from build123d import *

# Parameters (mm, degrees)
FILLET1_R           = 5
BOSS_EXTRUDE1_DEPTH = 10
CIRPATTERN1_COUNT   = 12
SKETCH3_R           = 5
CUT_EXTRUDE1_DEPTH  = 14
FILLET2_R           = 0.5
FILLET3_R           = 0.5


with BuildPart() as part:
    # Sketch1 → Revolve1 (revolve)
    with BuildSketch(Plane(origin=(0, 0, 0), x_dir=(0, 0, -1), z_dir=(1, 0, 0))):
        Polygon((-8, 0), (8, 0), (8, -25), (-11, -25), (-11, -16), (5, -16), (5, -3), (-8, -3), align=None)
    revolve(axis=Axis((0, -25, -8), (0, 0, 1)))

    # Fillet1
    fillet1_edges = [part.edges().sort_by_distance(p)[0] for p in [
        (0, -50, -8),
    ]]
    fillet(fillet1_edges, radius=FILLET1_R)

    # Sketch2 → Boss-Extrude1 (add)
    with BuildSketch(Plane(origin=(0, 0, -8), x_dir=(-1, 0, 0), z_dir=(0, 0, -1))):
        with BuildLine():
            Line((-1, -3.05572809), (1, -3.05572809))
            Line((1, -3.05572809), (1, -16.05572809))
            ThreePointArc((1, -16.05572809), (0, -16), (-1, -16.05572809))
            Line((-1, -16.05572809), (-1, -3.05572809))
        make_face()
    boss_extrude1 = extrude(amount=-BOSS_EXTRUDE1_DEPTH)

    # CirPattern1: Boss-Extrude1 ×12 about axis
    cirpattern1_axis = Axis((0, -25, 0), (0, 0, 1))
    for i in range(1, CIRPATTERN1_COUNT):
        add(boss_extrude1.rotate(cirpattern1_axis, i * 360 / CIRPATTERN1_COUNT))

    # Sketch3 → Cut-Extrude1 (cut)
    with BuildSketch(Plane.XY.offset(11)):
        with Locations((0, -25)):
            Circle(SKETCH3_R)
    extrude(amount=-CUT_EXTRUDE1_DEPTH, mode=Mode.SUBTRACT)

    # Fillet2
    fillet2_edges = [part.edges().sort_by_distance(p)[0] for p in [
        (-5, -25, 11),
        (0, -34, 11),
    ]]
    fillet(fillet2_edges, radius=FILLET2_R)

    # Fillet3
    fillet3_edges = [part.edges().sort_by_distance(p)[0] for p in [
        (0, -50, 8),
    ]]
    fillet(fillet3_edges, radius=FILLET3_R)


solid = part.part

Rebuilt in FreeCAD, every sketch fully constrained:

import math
import FreeCAD as App
import Part
import Sketcher
from FreeCAD import Vector


def edges_at(feature, points):
    """Names of the edges that pass closest to the given points."""
    edges = feature.Shape.Edges
    near = lambda p: min(range(len(edges)), key=lambda i: edges[i].distToShape(Part.Vertex(*p))[0])
    return sorted({f"Edge{near(p) + 1}" for p in points})


def add_polygon(sketch, points):
    """Adds a closed chain of lines whose ends are joined by coincident constraints."""
    first, n = sketch.GeometryCount, len(points)
    for a, b in zip(points, points[1:] + points[:1]):
        sketch.addGeometry(Part.LineSegment(App.Vector(*a, 0), App.Vector(*b, 0)), False)
    for i in range(n):
        sketch.addConstraint(Sketcher.Constraint("Coincident", first + i, 2, first + (i + 1) % n, 1))

doc = App.newDocument("Part")
params = doc.addObject("Spreadsheet::Sheet", "Params")
for row, (alias, value) in enumerate([
    ("sketch1_width", "3 mm"),
    ("sketch1_width2", "13 mm"),
    ("sketch1_width3", "9 mm"),
    ("sketch1_height", "16 mm"),
    ("revolution_angle", "360 deg"),
    ("fillet_radius", "5 mm"),
    ("sketch2_radius", "9 mm"),
    ("sketch2_width", "2 mm"),
    ("sketch2_height", "13 mm"),
    ("pad1_length", "10 mm"),
    ("sketch3_diameter", "10 mm"),
    ("pocket1_length", "14 mm"),
    ("fillet2_radius", "0.5 mm"),
    ("fillet3_radius", "0.5 mm"),
], start=1):
    params.set(f"A{row}", alias)
    params.set(f"B{row}", "=" + value)
    params.setAlias(f"B{row}", alias)

body = doc.addObject("PartDesign::Body", "Body")

# Sketch on YZ plane
sketch1 = body.newObject("Sketcher::SketchObject", "Sketch")
sketch1.AttachmentSupport = (doc.getObject("YZ_Plane"), [""])
sketch1.MapMode = "FlatFace"
add_polygon(sketch1, [(0, -8), (0, 8), (-3, 8), (-3, -5), (-16, -5), (-16, 11), (-25, 11), (-25, -8)])  # lines 0-7
sketch1.addGeometry(Part.LineSegment(Vector(-25, -8, 0), Vector(-25, 11, 0)), True)  # axis
sketch1.addConstraint(Sketcher.Constraint("Vertical", 0))
sketch1.addConstraint(Sketcher.Constraint("Horizontal", 1))
sketch1.addConstraint(Sketcher.Constraint("Vertical", 2))
sketch1.addConstraint(Sketcher.Constraint("Horizontal", 3))
sketch1.addConstraint(Sketcher.Constraint("Vertical", 4))
sketch1.addConstraint(Sketcher.Constraint("Horizontal", 5))
sketch1.addConstraint(Sketcher.Constraint("Vertical", 6))
sketch1.addConstraint(Sketcher.Constraint("Horizontal", 7))
sketch1.addConstraint(Sketcher.Constraint("Vertical", 8))
sketch1.addConstraint(Sketcher.Constraint("Coincident", 8, 1, 6, 2))
sketch1.addConstraint(Sketcher.Constraint("Symmetric", 0, 2, 7, 2, -1, 1))
sketch1.addConstraint(Sketcher.Constraint("Horizontal", 4, 2, 8, 2))
sketch1.addConstraint(Sketcher.Constraint("Equal", 3, 2))
sketch1.addConstraint(Sketcher.Constraint("Equal", 0, 4))
sketch1.addConstraint(Sketcher.Constraint("DistanceX", 1, 2, 1, 1, 3.0))
sketch1.addConstraint(Sketcher.Constraint("DistanceX", 3, 2, 3, 1, 13.0))
sketch1.addConstraint(Sketcher.Constraint("DistanceX", 5, 2, 5, 1, 9.0))
sketch1.addConstraint(Sketcher.Constraint("DistanceY", 0, 1, 0, 2, 16.0))
sketch1.setExpression("Constraints[22]", "Params.sketch1_width")
sketch1.setExpression("Constraints[23]", "Params.sketch1_width2")
sketch1.setExpression("Constraints[24]", "Params.sketch1_width3")
sketch1.setExpression("Constraints[25]", "Params.sketch1_height")
revolution = body.newObject("PartDesign::Revolution", "Revolution")
revolution.Profile = sketch1
revolution.ReferenceAxis = (sketch1, ["Axis0"])
revolution.setExpression("Angle", "Params.revolution_angle")
doc.recompute()

fillet = body.newObject("PartDesign::Fillet", "Fillet")
fillet.Base = (revolution, edges_at(revolution, [(0, -50, -8)]))
fillet.setExpression("Radius", "Params.fillet_radius")

# Sketch on XY plane
sketch2 = body.newObject("Sketcher::SketchObject", "Sketch001")
sketch2.AttachmentSupport = (doc.getObject("XY_Plane"), [""])
sketch2.MapMode = "FlatFace"
sketch2.AttachmentOffset = App.Placement(Vector(0, 0, -8), App.Rotation())
sketch2.addGeometry(Part.LineSegment(Vector(-1, -3.055728, 0), Vector(1, -3.055728, 0)), False)
sketch2.addGeometry(Part.LineSegment(Vector(1, -3.055728, 0), Vector(1, -16.055728, 0)), False)
sketch2.addGeometry(Part.ArcOfCircle(Part.Circle(Vector(0, -25, 0), Vector(0, 0, 1), 9), math.radians(83.62063), math.radians(96.37937)), False)
sketch2.addGeometry(Part.LineSegment(Vector(-1, -16.055728, 0), Vector(-1, -3.055728, 0)), False)
sketch2.addConstraint(Sketcher.Constraint("Coincident", 0, 2, 1, 1))
sketch2.addConstraint(Sketcher.Constraint("Coincident", 1, 2, 2, 1))
sketch2.addConstraint(Sketcher.Constraint("Coincident", 2, 2, 3, 1))
sketch2.addConstraint(Sketcher.Constraint("Coincident", 3, 2, 0, 1))
sketch2.addConstraint(Sketcher.Constraint("Horizontal", 0))
sketch2.addConstraint(Sketcher.Constraint("Vertical", 1))
sketch2.addConstraint(Sketcher.Constraint("Vertical", 3))
sketch2.addConstraint(Sketcher.Constraint("Symmetric", 1, 2, 2, 2, -2))
sketch2.addConstraint(Sketcher.Constraint("Radius", 2, 9.0))
sketch2.addConstraint(Sketcher.Constraint("DistanceX", 0, 1, 0, 2, 2.0))
sketch2.addConstraint(Sketcher.Constraint("DistanceY", 1, 2, 1, 1, 13.0))
sketch2.addConstraint(Sketcher.Constraint("DistanceY", 2, 3, -1, 1, 25.0))
sketch2.setExpression("Constraints[8]", "Params.sketch2_radius")
sketch2.setExpression("Constraints[9]", "Params.sketch2_width")
sketch2.setExpression("Constraints[10]", "Params.sketch2_height")
pad1 = body.newObject("PartDesign::Pad", "Pad")
pad1.Profile = sketch2
pad1.setExpression("Length", "Params.pad1_length")
doc.recompute()

datumline = body.newObject("PartDesign::Line", "DatumLine")
datumline.Placement = App.Placement(Vector(0, -25, 0), App.Rotation(Vector(0, 0, 1), Vector(0, 0, 1)))
polarpattern = body.newObject("PartDesign::PolarPattern", "PolarPattern")
polarpattern.Originals = [pad1]
polarpattern.Axis = (datumline, [""])
polarpattern.Angle = 360
polarpattern.Occurrences = 12
body.Tip = polarpattern

# Sketch on XY plane
sketch3 = body.newObject("Sketcher::SketchObject", "Sketch002")
sketch3.AttachmentSupport = (doc.getObject("XY_Plane"), [""])
sketch3.MapMode = "FlatFace"
sketch3.AttachmentOffset = App.Placement(Vector(0, 0, 11), App.Rotation())
sketch3.addGeometry(Part.Circle(Vector(0, -25, 0), Vector(0, 0, 1), 5), False)
sketch3.addConstraint(Sketcher.Constraint("PointOnObject", 0, 3, -2))
sketch3.addConstraint(Sketcher.Constraint("Diameter", 0, 10.0))
sketch3.addConstraint(Sketcher.Constraint("DistanceY", 0, 3, -1, 1, 25.0))
sketch3.setExpression("Constraints[1]", "Params.sketch3_diameter")
pocket1 = body.newObject("PartDesign::Pocket", "Pocket")
pocket1.Profile = sketch3
pocket1.setExpression("Length", "Params.pocket1_length")
doc.recompute()

fillet2 = body.newObject("PartDesign::Fillet", "Fillet001")
fillet2.Base = (pocket1, edges_at(pocket1, [(-5, -25, 11), (0, -34, 11)]))
fillet2.setExpression("Radius", "Params.fillet2_radius")
doc.recompute()

fillet3 = body.newObject("PartDesign::Fillet", "Fillet002")
fillet3.Base = (fillet2, edges_at(fillet2, [(0, -50, 8)]))
fillet3.setExpression("Radius", "Params.fillet3_radius")

doc.recompute()
